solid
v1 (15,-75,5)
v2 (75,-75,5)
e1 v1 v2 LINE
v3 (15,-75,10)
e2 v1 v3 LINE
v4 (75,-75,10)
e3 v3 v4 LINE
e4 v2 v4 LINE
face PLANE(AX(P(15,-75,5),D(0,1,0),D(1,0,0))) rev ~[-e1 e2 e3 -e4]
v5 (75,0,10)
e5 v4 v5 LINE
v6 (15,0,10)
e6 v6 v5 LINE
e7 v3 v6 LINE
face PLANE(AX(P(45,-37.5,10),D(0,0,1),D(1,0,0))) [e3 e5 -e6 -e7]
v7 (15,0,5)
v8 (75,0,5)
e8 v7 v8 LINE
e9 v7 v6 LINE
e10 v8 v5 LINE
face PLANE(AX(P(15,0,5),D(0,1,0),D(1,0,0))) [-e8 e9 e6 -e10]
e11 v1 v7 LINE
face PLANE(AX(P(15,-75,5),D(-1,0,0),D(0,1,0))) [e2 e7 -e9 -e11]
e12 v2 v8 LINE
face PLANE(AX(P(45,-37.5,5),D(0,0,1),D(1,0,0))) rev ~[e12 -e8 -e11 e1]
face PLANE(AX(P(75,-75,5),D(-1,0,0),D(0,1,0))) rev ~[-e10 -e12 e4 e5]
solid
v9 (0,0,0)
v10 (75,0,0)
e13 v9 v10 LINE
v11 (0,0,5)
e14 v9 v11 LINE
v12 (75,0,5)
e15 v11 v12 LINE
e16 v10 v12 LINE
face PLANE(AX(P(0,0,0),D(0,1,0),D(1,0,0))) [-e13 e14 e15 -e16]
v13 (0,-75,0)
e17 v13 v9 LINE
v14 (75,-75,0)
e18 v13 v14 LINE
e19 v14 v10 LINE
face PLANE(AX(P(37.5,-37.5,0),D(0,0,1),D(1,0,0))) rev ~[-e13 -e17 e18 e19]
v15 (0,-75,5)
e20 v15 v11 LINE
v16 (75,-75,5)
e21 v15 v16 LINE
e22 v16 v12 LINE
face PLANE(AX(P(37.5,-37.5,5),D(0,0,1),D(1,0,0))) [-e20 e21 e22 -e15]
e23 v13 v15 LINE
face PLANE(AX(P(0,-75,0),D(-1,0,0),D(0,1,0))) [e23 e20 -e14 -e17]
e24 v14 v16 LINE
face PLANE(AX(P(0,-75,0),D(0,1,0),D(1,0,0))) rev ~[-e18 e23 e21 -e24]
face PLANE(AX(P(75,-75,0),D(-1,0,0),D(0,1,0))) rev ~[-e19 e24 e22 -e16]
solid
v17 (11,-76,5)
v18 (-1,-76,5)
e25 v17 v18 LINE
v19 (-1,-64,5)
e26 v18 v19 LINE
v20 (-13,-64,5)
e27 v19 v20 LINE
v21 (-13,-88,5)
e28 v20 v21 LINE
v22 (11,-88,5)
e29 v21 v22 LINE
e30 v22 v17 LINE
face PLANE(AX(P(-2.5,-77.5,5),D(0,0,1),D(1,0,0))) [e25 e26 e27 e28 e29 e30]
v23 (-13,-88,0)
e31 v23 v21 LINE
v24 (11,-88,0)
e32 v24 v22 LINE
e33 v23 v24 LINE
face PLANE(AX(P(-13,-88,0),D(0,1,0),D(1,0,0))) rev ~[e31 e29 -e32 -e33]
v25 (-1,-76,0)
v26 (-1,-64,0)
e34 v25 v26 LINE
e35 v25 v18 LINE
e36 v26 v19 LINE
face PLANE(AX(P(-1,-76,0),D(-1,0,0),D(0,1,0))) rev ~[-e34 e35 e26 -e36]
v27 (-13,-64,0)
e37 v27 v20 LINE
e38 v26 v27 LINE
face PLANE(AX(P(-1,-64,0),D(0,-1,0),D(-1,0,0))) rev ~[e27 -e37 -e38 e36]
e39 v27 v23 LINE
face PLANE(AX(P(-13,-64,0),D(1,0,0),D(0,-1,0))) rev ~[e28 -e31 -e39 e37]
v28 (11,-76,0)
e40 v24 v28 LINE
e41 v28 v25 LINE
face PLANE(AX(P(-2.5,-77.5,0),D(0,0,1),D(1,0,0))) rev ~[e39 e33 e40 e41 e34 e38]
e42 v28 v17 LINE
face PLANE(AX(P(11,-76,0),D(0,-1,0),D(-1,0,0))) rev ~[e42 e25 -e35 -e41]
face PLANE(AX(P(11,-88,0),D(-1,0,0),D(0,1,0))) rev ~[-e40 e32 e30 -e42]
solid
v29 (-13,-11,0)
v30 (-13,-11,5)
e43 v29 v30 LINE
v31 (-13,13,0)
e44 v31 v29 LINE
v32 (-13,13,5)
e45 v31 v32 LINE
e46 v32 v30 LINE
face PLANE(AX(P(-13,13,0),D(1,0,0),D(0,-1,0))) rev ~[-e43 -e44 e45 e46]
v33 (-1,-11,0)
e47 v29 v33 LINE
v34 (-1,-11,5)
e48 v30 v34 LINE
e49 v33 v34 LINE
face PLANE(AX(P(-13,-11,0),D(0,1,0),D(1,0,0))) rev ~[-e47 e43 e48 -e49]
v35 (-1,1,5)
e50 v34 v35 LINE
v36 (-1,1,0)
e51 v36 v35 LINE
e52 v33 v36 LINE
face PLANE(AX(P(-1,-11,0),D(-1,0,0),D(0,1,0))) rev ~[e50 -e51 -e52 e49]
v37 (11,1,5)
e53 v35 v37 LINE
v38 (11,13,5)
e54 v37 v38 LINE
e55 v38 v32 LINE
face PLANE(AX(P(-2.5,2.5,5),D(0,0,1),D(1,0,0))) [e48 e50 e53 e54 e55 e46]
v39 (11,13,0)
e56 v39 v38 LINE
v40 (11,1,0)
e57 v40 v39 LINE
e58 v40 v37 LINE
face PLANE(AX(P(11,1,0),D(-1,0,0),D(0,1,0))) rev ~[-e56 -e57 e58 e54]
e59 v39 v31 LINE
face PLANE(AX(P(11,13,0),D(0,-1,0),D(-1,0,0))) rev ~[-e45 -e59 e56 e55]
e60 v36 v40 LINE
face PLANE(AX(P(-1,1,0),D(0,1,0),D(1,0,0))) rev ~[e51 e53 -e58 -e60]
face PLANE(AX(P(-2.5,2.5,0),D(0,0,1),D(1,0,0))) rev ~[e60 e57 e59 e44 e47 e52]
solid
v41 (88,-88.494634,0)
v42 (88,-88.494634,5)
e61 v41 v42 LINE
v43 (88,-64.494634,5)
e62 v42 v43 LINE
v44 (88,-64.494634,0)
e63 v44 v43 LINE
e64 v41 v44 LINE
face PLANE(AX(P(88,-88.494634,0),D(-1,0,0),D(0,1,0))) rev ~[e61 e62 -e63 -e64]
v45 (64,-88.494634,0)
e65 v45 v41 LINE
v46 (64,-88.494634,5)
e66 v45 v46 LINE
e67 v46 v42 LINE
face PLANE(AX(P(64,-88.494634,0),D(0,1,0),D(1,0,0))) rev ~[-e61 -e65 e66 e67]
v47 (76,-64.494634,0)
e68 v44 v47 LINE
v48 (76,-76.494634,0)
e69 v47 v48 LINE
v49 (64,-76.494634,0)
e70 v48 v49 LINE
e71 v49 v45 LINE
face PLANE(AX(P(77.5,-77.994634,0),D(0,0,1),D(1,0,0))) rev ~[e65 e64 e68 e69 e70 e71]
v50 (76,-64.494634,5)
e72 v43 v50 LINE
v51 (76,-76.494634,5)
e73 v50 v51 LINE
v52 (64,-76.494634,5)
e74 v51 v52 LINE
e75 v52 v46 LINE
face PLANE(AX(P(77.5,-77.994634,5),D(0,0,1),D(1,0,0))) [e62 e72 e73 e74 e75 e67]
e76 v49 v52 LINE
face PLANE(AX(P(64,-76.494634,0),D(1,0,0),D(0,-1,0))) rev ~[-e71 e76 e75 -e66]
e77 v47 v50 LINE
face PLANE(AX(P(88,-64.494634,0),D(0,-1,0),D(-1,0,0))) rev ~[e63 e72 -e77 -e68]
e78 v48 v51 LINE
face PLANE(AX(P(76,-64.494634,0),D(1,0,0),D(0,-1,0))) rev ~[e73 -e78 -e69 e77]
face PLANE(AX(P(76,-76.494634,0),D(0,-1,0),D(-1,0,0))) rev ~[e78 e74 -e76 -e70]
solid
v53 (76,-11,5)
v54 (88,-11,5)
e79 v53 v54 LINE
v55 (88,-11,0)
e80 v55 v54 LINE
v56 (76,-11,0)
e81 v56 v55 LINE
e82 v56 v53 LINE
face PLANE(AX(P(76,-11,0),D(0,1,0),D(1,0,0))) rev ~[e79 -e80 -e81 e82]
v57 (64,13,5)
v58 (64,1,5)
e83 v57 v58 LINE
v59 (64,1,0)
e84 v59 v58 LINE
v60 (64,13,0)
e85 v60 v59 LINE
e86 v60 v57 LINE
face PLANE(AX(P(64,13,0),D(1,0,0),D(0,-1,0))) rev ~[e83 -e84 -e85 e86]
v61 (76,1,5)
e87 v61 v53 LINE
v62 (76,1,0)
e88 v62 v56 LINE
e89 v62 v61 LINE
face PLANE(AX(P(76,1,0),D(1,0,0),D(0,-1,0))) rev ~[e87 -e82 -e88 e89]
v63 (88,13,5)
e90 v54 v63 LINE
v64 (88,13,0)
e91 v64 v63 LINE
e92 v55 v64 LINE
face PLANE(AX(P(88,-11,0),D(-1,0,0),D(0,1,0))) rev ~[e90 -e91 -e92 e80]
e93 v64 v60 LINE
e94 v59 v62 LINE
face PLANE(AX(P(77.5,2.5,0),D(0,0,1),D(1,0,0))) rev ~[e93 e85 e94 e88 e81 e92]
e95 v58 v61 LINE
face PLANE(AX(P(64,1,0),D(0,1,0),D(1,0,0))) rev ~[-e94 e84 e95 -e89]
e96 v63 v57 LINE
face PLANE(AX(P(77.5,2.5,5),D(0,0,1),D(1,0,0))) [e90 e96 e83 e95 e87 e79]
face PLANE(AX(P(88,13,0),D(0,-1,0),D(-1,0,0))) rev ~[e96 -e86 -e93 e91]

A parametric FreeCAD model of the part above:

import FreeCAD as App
import Part
import Sketcher

doc = App.newDocument("Part")
body = doc.addObject("PartDesign::Body", "Body")
body.AllowCompound = True

# Sketch on XY plane
sketch1 = body.newObject("Sketcher::SketchObject", "Sketch")
sketch1.AttachmentSupport = (doc.getObject("XY_Plane"), [""])
sketch1.MapMode = "FlatFace"
sketch1.addGeometry([
    Part.LineSegment(App.Vector(0, 0, 0), App.Vector(0, -75, 0)),  # 0
    Part.LineSegment(App.Vector(0, -75, 0), App.Vector(75, -75, 0)),  # 1
    Part.LineSegment(App.Vector(75, -75, 0), App.Vector(75, 0, 0)),  # 2
    Part.LineSegment(App.Vector(75, 0, 0), App.Vector(0, 0, 0)),  # 3
    Part.LineSegment(App.Vector(64, 13, 0), App.Vector(64, 1, 0)),  # 4
    Part.LineSegment(App.Vector(64, 1, 0), App.Vector(76, 1, 0)),  # 5
    Part.LineSegment(App.Vector(76, 1, 0), App.Vector(76, -11, 0)),  # 6
    Part.LineSegment(App.Vector(76, -11, 0), App.Vector(88, -11, 0)),  # 7
    Part.LineSegment(App.Vector(88, -11, 0), App.Vector(88, 13, 0)),  # 8
    Part.LineSegment(App.Vector(88, 13, 0), App.Vector(64, 13, 0)),  # 9
    Part.LineSegment(App.Vector(-1, -76, 0), App.Vector(-1, -64, 0)),  # 10
    Part.LineSegment(App.Vector(-1, -64, 0), App.Vector(-13, -64, 0)),  # 11
    Part.LineSegment(App.Vector(-13, -64, 0), App.Vector(-13, -88, 0)),  # 12
    Part.LineSegment(App.Vector(-13, -88, 0), App.Vector(11, -88, 0)),  # 13
    Part.LineSegment(App.Vector(11, -88, 0), App.Vector(11, -76, 0)),  # 14
    Part.LineSegment(App.Vector(11, -76, 0), App.Vector(-1, -76, 0)),  # 15
    Part.LineSegment(App.Vector(-1, -11, 0), App.Vector(-1, 1, 0)),  # 16
    Part.LineSegment(App.Vector(-1, 1, 0), App.Vector(11, 1, 0)),  # 17
    Part.LineSegment(App.Vector(11, 1, 0), App.Vector(11, 13, 0)),  # 18
    Part.LineSegment(App.Vector(11, 13, 0), App.Vector(-13, 13, 0)),  # 19
    Part.LineSegment(App.Vector(-13, 13, 0), App.Vector(-13, -11, 0)),  # 20
    Part.LineSegment(App.Vector(-13, -11, 0), App.Vector(-1, -11, 0)),  # 21
    Part.LineSegment(App.Vector(76, -64, 0), App.Vector(76, -76, 0)),  # 22
    Part.LineSegment(App.Vector(76, -76, 0), App.Vector(64, -76, 0)),  # 23
    Part.LineSegment(App.Vector(64, -76, 0), App.Vector(64, -88, 0)),  # 24
    Part.LineSegment(App.Vector(64, -88, 0), App.Vector(88, -88, 0)),  # 25
    Part.LineSegment(App.Vector(88, -88, 0), App.Vector(88, -64, 0)),  # 26
    Part.LineSegment(App.Vector(88, -64, 0), App.Vector(76, -64, 0)),  # 27
], False)
sketch1.addConstraint([
    Sketcher.Constraint("Coincident", 0, 2, 1, 1),
    Sketcher.Constraint("Coincident", 1, 2, 2, 1),
    Sketcher.Constraint("Coincident", 2, 2, 3, 1),
    Sketcher.Constraint("Coincident", 3, 2, 0, 1),
    Sketcher.Constraint("Coincident", 4, 2, 5, 1),
    Sketcher.Constraint("Coincident", 5, 2, 6, 1),
    Sketcher.Constraint("Coincident", 6, 2, 7, 1),
    Sketcher.Constraint("Coincident", 7, 2, 8, 1),
    Sketcher.Constraint("Coincident", 8, 2, 9, 1),
    Sketcher.Constraint("Coincident", 9, 2, 4, 1),
    Sketcher.Constraint("Coincident", 10, 2, 11, 1),
    Sketcher.Constraint("Coincident", 11, 2, 12, 1),
    Sketcher.Constraint("Coincident", 12, 2, 13, 1),
    Sketcher.Constraint("Coincident", 13, 2, 14, 1),
    Sketcher.Constraint("Coincident", 14, 2, 15, 1),
    Sketcher.Constraint("Coincident", 15, 2, 10, 1),
    Sketcher.Constraint("Coincident", 16, 2, 17, 1),
    Sketcher.Constraint("Coincident", 17, 2, 18, 1),
    Sketcher.Constraint("Coincident", 18, 2, 19, 1),
    Sketcher.Constraint("Coincident", 19, 2, 20, 1),
    Sketcher.Constraint("Coincident", 20, 2, 21, 1),
    Sketcher.Constraint("Coincident", 21, 2, 16, 1),
    Sketcher.Constraint("Coincident", 22, 2, 23, 1),
    Sketcher.Constraint("Coincident", 23, 2, 24, 1),
    Sketcher.Constraint("Coincident", 24, 2, 25, 1),
    Sketcher.Constraint("Coincident", 25, 2, 26, 1),
    Sketcher.Constraint("Coincident", 26, 2, 27, 1),
    Sketcher.Constraint("Coincident", 27, 2, 22, 1),
    Sketcher.Constraint("Vertical", 0),
    Sketcher.Constraint("Horizontal", 1),
    Sketcher.Constraint("Vertical", 2),
    Sketcher.Constraint("Horizontal", 3),
    Sketcher.Constraint("Vertical", 4),
    Sketcher.Constraint("Horizontal", 5),
    Sketcher.Constraint("Vertical", 6),
    Sketcher.Constraint("Horizontal", 7),
    Sketcher.Constraint("Vertical", 8),
    Sketcher.Constraint("Horizontal", 9),
    Sketcher.Constraint("Vertical", 10),
    Sketcher.Constraint("Horizontal", 11),
    Sketcher.Constraint("Vertical", 12),
    Sketcher.Constraint("Horizontal", 13),
    Sketcher.Constraint("Vertical", 14),
    Sketcher.Constraint("Horizontal", 15),
    Sketcher.Constraint("Vertical", 16),
    Sketcher.Constraint("Horizontal", 17),
    Sketcher.Constraint("Vertical", 18),
    Sketcher.Constraint("Horizontal", 19),
    Sketcher.Constraint("Vertical", 20),
    Sketcher.Constraint("Horizontal", 21),
    Sketcher.Constraint("Vertical", 22),
    Sketcher.Constraint("Horizontal", 23),
    Sketcher.Constraint("Vertical", 24),
    Sketcher.Constraint("Horizontal", 25),
    Sketcher.Constraint("Vertical", 26),
    Sketcher.Constraint("Horizontal", 27),
    Sketcher.Constraint("Coincident", 3, 2, -1, 1),
    Sketcher.Constraint("Horizontal", 5, 2, 16, 2),
    Sketcher.Constraint("Horizontal", 9, 2, 18, 2),
    Sketcher.Constraint("Horizontal", 7, 2, 20, 2),
    Sketcher.Constraint("Vertical", 15, 2, 16, 2),
    Sketcher.Constraint("Vertical", 14, 2, 17, 2),
    Sketcher.Constraint("Vertical", 12, 2, 19, 2),
    Sketcher.Constraint("Vertical", 6, 2, 22, 2),
    Sketcher.Constraint("Vertical", 9, 2, 23, 2),
    Sketcher.Constraint("Vertical", 8, 2, 25, 2),
    Sketcher.Constraint("Equal", 5, 7),
    Sketcher.Constraint("Equal", 7, 11),
    Sketcher.Constraint("Equal", 9, 13),
    Sketcher.Constraint("Equal", 3, 0),
    Sketcher.Constraint("Equal", 27, 4),
    Sketcher.Constraint("Equal", 4, 6),
    Sketcher.Constraint("Equal", 6, 10),
    Sketcher.Constraint("Equal", 8, 12),
    Sketcher.Constraint("Equal", 18, 22),
    Sketcher.Constraint("Equal", 22, 24),
    Sketcher.Constraint("DistanceX", 1, 1, 1, 2, 75.0),
    Sketcher.Constraint("DistanceX", 5, 1, 5, 2, 12.0),
    Sketcher.Constraint("DistanceX", -1, 1, 4, 2, 64.0),
    Sketcher.Constraint("DistanceY", -1, 1, 4, 2, 1.0),
    Sketcher.Constraint("DistanceX", 10, 2, -1, 1, 1.0),
    Sketcher.Constraint("DistanceY", 10, 2, -1, 1, 64.0),
    Sketcher.Constraint("DistanceY", 22, 2, -1, 1, 76.494634),
])
pad1 = body.newObject("PartDesign::Pad", "Pad")
pad1.Profile = sketch1
pad1.Length = 5
body2 = doc.addObject("PartDesign::Body", "Body001")

# Sketch on XY plane
sketch2 = body2.newObject("Sketcher::SketchObject", "Sketch001")
sketch2.AttachmentSupport = (doc.getObject("XY_Plane001"), [""])
sketch2.MapMode = "FlatFace"
sketch2.AttachmentOffset = App.Placement(App.Vector(0, 0, 5), App.Rotation())
sketch2.addGeometry([
    Part.LineSegment(App.Vector(15, 0, 0), App.Vector(15, -75, 0)),
    Part.LineSegment(App.Vector(15, -75, 0), App.Vector(75, -75, 0)),
    Part.LineSegment(App.Vector(75, -75, 0), App.Vector(75, 0, 0)),
    Part.LineSegment(App.Vector(75, 0, 0), App.Vector(15, 0, 0)),
], False)
sketch2.addConstraint([
    Sketcher.Constraint("Coincident", 0, 2, 1, 1),
    Sketcher.Constraint("Coincident", 1, 2, 2, 1),
    Sketcher.Constraint("Coincident", 2, 2, 3, 1),
    Sketcher.Constraint("Coincident", 3, 2, 0, 1),
    Sketcher.Constraint("Vertical", 0),
    Sketcher.Constraint("Horizontal", 1),
    Sketcher.Constraint("Vertical", 2),
    Sketcher.Constraint("Horizontal", 3),
    Sketcher.Constraint("PointOnObject", 2, 2, -1),
    Sketcher.Constraint("DistanceX", 1, 1, 1, 2, 60.0),
    Sketcher.Constraint("DistanceY", 0, 2, 0, 1, 75.0),
    Sketcher.Constraint("DistanceX", -1, 1, 0, 2, 15.0),
])
pad2 = body2.newObject("PartDesign::Pad", "Pad001")
pad2.Profile = sketch2
pad2.Length = 5

doc.recompute()
